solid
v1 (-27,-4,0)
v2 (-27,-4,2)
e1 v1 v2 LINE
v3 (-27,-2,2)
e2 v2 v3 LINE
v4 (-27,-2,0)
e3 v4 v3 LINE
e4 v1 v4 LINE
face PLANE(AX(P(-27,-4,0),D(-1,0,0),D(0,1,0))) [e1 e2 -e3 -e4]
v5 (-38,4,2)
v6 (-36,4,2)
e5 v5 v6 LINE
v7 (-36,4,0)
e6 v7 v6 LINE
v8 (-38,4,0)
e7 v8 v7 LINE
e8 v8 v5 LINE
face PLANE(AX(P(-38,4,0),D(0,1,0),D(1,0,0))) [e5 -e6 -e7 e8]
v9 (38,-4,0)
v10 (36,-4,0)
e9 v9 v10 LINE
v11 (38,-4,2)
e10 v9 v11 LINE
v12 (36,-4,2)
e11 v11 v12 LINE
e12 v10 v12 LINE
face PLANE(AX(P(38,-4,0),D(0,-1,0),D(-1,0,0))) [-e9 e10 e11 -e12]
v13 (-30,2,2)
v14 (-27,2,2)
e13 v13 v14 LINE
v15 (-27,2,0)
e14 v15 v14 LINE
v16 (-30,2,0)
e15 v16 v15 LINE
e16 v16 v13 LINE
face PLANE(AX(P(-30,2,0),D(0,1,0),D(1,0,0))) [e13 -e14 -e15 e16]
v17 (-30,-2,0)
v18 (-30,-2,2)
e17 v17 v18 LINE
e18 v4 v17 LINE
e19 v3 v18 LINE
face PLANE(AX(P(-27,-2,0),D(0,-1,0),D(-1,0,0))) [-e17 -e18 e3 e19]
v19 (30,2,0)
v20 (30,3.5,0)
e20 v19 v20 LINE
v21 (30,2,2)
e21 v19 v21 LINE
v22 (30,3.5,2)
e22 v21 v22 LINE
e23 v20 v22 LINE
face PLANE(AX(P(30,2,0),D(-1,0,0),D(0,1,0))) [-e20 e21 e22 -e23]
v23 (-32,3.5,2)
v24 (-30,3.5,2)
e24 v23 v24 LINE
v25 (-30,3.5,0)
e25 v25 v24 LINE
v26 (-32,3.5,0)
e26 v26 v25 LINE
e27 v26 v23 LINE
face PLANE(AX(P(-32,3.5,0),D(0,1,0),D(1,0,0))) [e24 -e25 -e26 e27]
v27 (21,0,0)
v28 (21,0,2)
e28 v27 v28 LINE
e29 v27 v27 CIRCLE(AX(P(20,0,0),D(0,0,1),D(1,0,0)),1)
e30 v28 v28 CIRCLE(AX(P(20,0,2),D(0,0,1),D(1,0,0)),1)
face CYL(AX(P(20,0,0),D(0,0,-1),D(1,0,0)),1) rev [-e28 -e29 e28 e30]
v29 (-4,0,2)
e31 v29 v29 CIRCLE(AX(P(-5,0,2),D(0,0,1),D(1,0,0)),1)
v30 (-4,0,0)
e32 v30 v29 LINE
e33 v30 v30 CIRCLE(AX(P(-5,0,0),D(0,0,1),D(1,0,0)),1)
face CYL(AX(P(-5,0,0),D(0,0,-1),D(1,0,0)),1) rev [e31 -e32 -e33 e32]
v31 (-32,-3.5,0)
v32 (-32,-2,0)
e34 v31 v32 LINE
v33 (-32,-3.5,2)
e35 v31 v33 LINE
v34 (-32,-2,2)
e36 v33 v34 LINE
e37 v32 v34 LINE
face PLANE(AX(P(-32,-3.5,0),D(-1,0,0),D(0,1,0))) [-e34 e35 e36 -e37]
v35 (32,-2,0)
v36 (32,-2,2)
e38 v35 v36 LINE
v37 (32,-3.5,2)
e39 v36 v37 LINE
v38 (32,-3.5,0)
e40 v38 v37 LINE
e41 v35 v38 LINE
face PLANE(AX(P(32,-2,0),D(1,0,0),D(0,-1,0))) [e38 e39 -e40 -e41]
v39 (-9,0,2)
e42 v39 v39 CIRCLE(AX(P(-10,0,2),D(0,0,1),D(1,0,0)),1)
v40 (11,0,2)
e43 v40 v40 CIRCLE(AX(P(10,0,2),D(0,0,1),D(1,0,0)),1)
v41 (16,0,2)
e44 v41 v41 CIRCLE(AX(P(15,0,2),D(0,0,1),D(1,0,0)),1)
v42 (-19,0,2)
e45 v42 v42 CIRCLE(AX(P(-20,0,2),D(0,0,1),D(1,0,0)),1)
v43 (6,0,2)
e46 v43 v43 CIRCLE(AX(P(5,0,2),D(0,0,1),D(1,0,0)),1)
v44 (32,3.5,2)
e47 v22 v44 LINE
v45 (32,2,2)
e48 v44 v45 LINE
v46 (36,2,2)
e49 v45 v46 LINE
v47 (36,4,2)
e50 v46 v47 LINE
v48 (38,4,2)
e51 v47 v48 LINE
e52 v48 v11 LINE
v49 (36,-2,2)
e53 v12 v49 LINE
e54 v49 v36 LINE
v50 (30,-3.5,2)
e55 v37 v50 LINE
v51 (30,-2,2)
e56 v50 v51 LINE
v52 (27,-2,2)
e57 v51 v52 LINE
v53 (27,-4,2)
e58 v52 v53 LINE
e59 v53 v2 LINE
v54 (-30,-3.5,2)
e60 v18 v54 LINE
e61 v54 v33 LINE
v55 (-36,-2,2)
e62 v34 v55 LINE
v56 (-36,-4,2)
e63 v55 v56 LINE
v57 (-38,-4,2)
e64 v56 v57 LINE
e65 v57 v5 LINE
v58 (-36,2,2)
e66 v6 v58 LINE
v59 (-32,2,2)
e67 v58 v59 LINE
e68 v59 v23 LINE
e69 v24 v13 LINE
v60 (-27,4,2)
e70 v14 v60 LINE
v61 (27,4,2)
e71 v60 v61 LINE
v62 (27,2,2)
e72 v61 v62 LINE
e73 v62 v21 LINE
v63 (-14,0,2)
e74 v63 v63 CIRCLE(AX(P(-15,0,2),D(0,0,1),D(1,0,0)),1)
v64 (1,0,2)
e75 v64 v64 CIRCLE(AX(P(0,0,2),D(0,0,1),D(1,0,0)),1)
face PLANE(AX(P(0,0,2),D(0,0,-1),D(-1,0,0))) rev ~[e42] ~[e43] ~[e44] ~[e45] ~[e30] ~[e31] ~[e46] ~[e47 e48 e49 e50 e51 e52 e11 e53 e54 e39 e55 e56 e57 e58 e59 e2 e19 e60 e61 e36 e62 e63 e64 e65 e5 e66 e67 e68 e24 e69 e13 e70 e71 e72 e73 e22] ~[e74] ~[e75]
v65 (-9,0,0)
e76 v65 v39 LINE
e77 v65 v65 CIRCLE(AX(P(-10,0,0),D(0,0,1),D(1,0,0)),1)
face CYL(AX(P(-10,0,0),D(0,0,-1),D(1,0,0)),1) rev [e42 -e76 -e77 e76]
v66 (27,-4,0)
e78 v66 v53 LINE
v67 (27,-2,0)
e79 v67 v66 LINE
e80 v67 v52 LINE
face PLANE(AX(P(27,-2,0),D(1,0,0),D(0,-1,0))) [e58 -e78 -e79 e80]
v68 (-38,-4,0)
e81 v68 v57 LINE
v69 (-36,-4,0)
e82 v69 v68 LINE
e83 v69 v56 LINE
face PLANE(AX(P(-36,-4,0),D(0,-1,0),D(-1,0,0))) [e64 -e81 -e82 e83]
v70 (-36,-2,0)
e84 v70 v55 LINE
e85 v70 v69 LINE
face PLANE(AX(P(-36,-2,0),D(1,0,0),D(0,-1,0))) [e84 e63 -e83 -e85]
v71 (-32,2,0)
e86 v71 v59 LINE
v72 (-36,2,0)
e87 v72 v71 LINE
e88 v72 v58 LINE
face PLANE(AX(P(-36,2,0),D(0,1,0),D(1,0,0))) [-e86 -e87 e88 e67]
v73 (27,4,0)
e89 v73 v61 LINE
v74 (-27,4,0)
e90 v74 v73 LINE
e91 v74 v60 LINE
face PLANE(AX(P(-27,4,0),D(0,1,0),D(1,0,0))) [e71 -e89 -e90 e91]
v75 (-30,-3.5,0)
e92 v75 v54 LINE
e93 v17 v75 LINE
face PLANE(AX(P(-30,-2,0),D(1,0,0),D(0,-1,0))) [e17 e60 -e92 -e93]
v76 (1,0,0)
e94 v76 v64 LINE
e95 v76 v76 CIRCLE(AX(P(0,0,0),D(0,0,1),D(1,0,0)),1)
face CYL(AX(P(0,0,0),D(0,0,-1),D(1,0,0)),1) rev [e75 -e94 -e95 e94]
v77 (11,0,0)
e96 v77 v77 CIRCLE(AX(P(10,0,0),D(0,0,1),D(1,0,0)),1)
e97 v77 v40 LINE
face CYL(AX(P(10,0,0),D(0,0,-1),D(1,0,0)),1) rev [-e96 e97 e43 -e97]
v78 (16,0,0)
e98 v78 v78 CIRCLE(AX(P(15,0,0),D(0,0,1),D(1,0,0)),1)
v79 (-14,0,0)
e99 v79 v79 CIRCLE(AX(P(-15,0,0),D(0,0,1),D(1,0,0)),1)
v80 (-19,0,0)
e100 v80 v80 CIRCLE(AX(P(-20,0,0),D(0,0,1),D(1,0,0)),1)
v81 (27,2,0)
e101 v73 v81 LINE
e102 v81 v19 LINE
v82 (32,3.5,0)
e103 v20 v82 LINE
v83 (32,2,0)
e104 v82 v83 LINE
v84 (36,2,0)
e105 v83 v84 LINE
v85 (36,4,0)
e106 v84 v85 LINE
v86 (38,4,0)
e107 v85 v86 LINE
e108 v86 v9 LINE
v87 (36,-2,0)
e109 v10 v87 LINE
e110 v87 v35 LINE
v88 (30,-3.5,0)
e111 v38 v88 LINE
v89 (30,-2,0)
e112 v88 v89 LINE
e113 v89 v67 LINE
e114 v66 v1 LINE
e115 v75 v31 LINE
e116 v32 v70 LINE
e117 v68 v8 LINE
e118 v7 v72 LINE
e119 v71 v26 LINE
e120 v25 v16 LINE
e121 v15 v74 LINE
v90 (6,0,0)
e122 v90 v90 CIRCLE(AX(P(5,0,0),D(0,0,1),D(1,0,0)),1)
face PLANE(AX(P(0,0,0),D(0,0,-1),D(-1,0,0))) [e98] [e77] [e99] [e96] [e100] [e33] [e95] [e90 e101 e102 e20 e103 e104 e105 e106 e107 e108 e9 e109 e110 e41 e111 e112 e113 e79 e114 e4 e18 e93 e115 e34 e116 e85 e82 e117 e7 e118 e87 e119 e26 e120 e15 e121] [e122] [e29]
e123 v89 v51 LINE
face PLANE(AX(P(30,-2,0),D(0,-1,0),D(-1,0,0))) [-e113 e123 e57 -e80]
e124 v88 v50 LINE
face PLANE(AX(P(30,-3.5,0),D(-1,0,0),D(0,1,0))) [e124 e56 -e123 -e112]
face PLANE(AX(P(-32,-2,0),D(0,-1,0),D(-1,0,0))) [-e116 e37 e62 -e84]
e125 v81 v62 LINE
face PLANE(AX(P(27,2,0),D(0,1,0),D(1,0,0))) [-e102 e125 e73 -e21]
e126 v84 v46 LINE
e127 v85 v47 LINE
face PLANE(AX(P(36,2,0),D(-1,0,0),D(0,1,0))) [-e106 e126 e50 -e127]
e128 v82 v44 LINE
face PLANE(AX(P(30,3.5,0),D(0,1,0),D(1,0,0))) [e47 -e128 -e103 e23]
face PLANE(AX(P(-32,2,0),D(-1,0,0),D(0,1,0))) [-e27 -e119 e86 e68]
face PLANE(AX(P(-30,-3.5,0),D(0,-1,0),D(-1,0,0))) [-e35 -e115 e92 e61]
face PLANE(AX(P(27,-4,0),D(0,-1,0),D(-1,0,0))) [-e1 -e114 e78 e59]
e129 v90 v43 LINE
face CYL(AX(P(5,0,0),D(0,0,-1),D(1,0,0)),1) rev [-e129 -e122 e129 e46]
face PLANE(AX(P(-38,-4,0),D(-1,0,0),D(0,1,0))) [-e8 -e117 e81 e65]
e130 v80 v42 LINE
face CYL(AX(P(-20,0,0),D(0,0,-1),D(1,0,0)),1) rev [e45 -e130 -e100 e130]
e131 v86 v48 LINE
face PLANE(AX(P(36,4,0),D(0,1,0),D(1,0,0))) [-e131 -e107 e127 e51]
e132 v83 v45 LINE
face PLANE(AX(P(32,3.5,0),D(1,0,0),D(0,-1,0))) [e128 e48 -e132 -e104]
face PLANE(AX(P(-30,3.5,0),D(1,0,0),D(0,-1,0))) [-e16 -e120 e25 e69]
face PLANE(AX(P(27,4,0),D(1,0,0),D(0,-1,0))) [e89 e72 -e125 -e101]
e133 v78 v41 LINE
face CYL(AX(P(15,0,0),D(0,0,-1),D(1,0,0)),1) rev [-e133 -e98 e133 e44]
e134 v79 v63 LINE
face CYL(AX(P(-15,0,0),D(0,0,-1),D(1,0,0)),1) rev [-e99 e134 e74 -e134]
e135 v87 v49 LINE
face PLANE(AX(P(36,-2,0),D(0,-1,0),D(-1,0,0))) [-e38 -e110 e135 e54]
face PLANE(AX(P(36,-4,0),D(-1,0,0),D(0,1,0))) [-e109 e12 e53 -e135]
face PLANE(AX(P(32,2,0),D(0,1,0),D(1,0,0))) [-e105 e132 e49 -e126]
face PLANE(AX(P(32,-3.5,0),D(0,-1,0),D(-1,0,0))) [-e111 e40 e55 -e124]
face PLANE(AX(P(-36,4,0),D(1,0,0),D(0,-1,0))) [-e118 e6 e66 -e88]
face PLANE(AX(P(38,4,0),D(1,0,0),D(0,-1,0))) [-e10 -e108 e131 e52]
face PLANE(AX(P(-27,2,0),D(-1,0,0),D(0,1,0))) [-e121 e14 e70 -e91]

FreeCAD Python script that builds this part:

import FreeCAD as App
import Part
import Sketcher
Q = App.Units.Quantity


def add_polygon(sketch, points):
    """Adds a closed chain of lines whose ends are joined by coincident constraints."""
    first, n = sketch.GeometryCount, len(points)
    for a, b in zip(points, points[1:] + points[:1]):
        sketch.addGeometry(Part.LineSegment(App.Vector(*a, 0), App.Vector(*b, 0)), False)
    for i in range(n):
        sketch.addConstraint(Sketcher.Constraint("Coincident", first + i, 2, first + (i + 1) % n, 1))

doc = App.newDocument("Part")
params = doc.addObject("Spreadsheet::Sheet", "Params")
for row, (alias, value) in enumerate([
    ("sketch1_diameter", "2 mm"),
    ("sketch1_width", "54 mm"),
    ("sketch1_width2", "3 mm"),
    ("sketch1_width3", "2 mm"),
    ("sketch1_width4", "4 mm"),
    ("pad1_length", "2 mm"),
], start=1):
    params.set(f"A{row}", alias)
    params.set(f"B{row}", "=" + value)
    params.setAlias(f"B{row}", alias)

body = doc.addObject("PartDesign::Body", "Body")

# Sketch on XY plane
sketch1 = body.newObject("Sketcher::SketchObject", "Sketch")
sketch1.AttachmentSupport = (doc.getObject("XY_Plane"), [""])
sketch1.MapMode = "FlatFace"
add_polygon(sketch1, [(27, 4), (-27, 4), (-27, 2), (-30, 2), (-30, 3.5), (-32, 3.5), (-32, 2), (-36, 2), (-36, 4), (-38, 4), (-38, -4), (-36, -4), (-36, -2), (-32, -2), (-32, -3.5), (-30, -3.5), (-30, -2), (-27, -2), (-27, -4), (27, -4), (27, -2), (30, -2), (30, -3.5), (32, -3.5), (32, -2), (36, -2), (36, -4), (38, -4), (38, 4), (36, 4), (36, 2), (32, 2), (32, 3.5), (30, 3.5), (30, 2), (27, 2)])  # lines 0-35
sketch1.addGeometry(Part.Circle(App.Vector(20, 0, 0), App.Vector(0, 0, 1), 1), False)  # 36
sketch1.addGeometry(Part.Circle(App.Vector(15, 0, 0), App.Vector(0, 0, 1), 1), False)  # 37
sketch1.addGeometry(Part.Circle(App.Vector(10, 0, 0), App.Vector(0, 0, 1), 1), False)  # 38
sketch1.addGeometry(Part.Circle(App.Vector(5, 0, 0), App.Vector(0, 0, 1), 1), False)  # 39
sketch1.addGeometry(Part.Circle(App.Vector(0, 0, 0), App.Vector(0, 0, 1), 1), False)  # 40
sketch1.addGeometry(Part.Circle(App.Vector(-5, 0, 0), App.Vector(0, 0, 1), 1), False)  # 41
sketch1.addGeometry(Part.Circle(App.Vector(-10, 0, 0), App.Vector(0, 0, 1), 1), False)  # 42
sketch1.addGeometry(Part.Circle(App.Vector(-15, 0, 0), App.Vector(0, 0, 1), 1), False)  # 43
sketch1.addGeometry(Part.Circle(App.Vector(-20, 0, 0), App.Vector(0, 0, 1), 1), False)  # 44
sketch1.addConstraint(Sketcher.Constraint("Horizontal", 0))
sketch1.addConstraint(Sketcher.Constraint("Vertical", 1))
sketch1.addConstraint(Sketcher.Constraint("Horizontal", 2))
sketch1.addConstraint(Sketcher.Constraint("Vertical", 3))
sketch1.addConstraint(Sketcher.Constraint("Horizontal", 4))
sketch1.addConstraint(Sketcher.Constraint("Vertical", 5))
sketch1.addConstraint(Sketcher.Constraint("Horizontal", 6))
sketch1.addConstraint(Sketcher.Constraint("Vertical", 7))
sketch1.addConstraint(Sketcher.Constraint("Horizontal", 8))
sketch1.addConstraint(Sketcher.Constraint("Vertical", 9))
sketch1.addConstraint(Sketcher.Constraint("Horizontal", 10))
sketch1.addConstraint(Sketcher.Constraint("Vertical", 11))
sketch1.addConstraint(Sketcher.Constraint("Horizontal", 12))
sketch1.addConstraint(Sketcher.Constraint("Vertical", 13))
sketch1.addConstraint(Sketcher.Constraint("Horizontal", 14))
sketch1.addConstraint(Sketcher.Constraint("Vertical", 15))
sketch1.addConstraint(Sketcher.Constraint("Horizontal", 16))
sketch1.addConstraint(Sketcher.Constraint("Vertical", 17))
sketch1.addConstraint(Sketcher.Constraint("Horizontal", 18))
sketch1.addConstraint(Sketcher.Constraint("Vertical", 19))
sketch1.addConstraint(Sketcher.Constraint("Horizontal", 20))
sketch1.addConstraint(Sketcher.Constraint("Vertical", 21))
sketch1.addConstraint(Sketcher.Constraint("Horizontal", 22))
sketch1.addConstraint(Sketcher.Constraint("Vertical", 23))
sketch1.addConstraint(Sketcher.Constraint("Horizontal", 24))
sketch1.addConstraint(Sketcher.Constraint("Vertical", 25))
sketch1.addConstraint(Sketcher.Constraint("Horizontal", 26))
sketch1.addConstraint(Sketcher.Constraint("Vertical", 27))
sketch1.addConstraint(Sketcher.Constraint("Horizontal", 28))
sketch1.addConstraint(Sketcher.Constraint("Vertical", 29))
sketch1.addConstraint(Sketcher.Constraint("Horizontal", 30))
sketch1.addConstraint(Sketcher.Constraint("Vertical", 31))
sketch1.addConstraint(Sketcher.Constraint("Horizontal", 32))
sketch1.addConstraint(Sketcher.Constraint("Vertical", 33))
sketch1.addConstraint(Sketcher.Constraint("Horizontal", 34))
sketch1.addConstraint(Sketcher.Constraint("Vertical", 35))
sketch1.addConstraint(Sketcher.Constraint("Coincident", 40, 3, -1, 1))
sketch1.addConstraint(Sketcher.Constraint("Equal", 36, 37))
sketch1.addConstraint(Sketcher.Constraint("Equal", 37, 38))
sketch1.addConstraint(Sketcher.Constraint("Equal", 38, 39))
sketch1.addConstraint(Sketcher.Constraint("Equal", 39, 40))
sketch1.addConstraint(Sketcher.Constraint("Equal", 40, 41))
sketch1.addConstraint(Sketcher.Constraint("Equal", 41, 42))
sketch1.addConstraint(Sketcher.Constraint("Equal", 42, 43))
sketch1.addConstraint(Sketcher.Constraint("Equal", 43, 44))
sketch1.addConstraint(Sketcher.Constraint("Symmetric", 39, 3, 41, 3, -1, 1))
sketch1.addConstraint(Sketcher.Constraint("Symmetric", 38, 3, 42, 3, -1, 1))
sketch1.addConstraint(Sketcher.Constraint("Symmetric", 37, 3, 43, 3, -1, 1))
sketch1.addConstraint(Sketcher.Constraint("Symmetric", 36, 3, 44, 3, -1, 1))
sketch1.addConstraint(Sketcher.Constraint("Symmetric", 0, 2, 18, 2, -1, 1))
sketch1.addConstraint(Sketcher.Constraint("Symmetric", 2, 2, 20, 2, -1, 1))
sketch1.addConstraint(Sketcher.Constraint("Symmetric", 4, 2, 22, 2, -1, 1))
sketch1.addConstraint(Sketcher.Constraint("Symmetric", 6, 2, 24, 2, -1, 1))
sketch1.addConstraint(Sketcher.Constraint("Symmetric", 8, 2, 26, 2, -1, 1))
sketch1.addConstraint(Sketcher.Constraint("Symmetric", 10, 2, 28, 2, -1, 1))
sketch1.addConstraint(Sketcher.Constraint("Symmetric", 12, 2, 30, 2, -1, 1))
sketch1.addConstraint(Sketcher.Constraint("Symmetric", 14, 2, 32, 2, -1, 1))
sketch1.addConstraint(Sketcher.Constraint("Symmetric", 16, 2, 34, 2, -1, 1))
sketch1.addConstraint(Sketcher.Constraint("Symmetric", 16, 2, 19, 2, -2))
sketch1.addConstraint(Sketcher.Constraint("Symmetric", 14, 2, 21, 2, -2))
sketch1.addConstraint(Sketcher.Constraint("Symmetric", 12, 2, 23, 2, -2))
sketch1.addConstraint(Sketcher.Constraint("Symmetric", 10, 2, 25, 2, -2))
sketch1.addConstraint(Sketcher.Constraint("PointOnObject", 36, 3, -1))
sketch1.addConstraint(Sketcher.Constraint("PointOnObject", 37, 3, -1))
sketch1.addConstraint(Sketcher.Constraint("PointOnObject", 38, 3, -1))
sketch1.addConstraint(Sketcher.Constraint("PointOnObject", 39, 3, -1))
sketch1.addConstraint(Sketcher.Constraint("Horizontal", 2, 2, 5, 2))
sketch1.addConstraint(Sketcher.Constraint("Horizontal", 0, 2, 7, 2))
sketch1.addConstraint(Sketcher.Constraint("Equal", 4, 8))
sketch1.addConstraint(Sketcher.Constraint("Equal", 32, 1))
sketch1.addConstraint(Sketcher.Constraint("Diameter", 36, Q("2 mm")))
sketch1.addConstraint(Sketcher.Constraint("DistanceX", 0, 2, 0, 1, Q("54 mm")))
sketch1.addConstraint(Sketcher.Constraint("DistanceX", 2, 2, 2, 1, Q("3 mm")))
sketch1.addConstraint(Sketcher.Constraint("DistanceX", 4, 2, 4, 1, Q("2 mm")))
sketch1.addConstraint(Sketcher.Constraint("DistanceX", 6, 2, 6, 1, Q("4 mm")))
sketch1.addConstraint(Sketcher.Constraint("DistanceY", 9, 2, 9, 1, Q("8 mm")))
sketch1.addConstraint(Sketcher.Constraint("DistanceY", 3, 1, 3, 2, Q("1.5 mm")))
sketch1.addConstraint(Sketcher.Constraint("DistanceX", -1, 1, 36, 3, Q("20 mm")))
sketch1.addConstraint(Sketcher.Constraint("DistanceX", -1, 1, 37, 3, Q("15 mm")))
sketch1.addConstraint(Sketcher.Constraint("DistanceX", -1, 1, 38, 3, Q("10 mm")))
sketch1.addConstraint(Sketcher.Constraint("DistanceX", -1, 1, 39, 3, Q("5 mm")))
sketch1.setExpression("Constraints[106]", "Params.sketch1_diameter")
sketch1.setExpression("Constraints[107]", "Params.sketch1_width")
sketch1.setExpression("Constraints[108]", "Params.sketch1_width2")
sketch1.setExpression("Constraints[109]", "Params.sketch1_width3")
sketch1.setExpression("Constraints[110]", "Params.sketch1_width4")
pad1 = body.newObject("PartDesign::Pad", "Pad")
pad1.Profile = sketch1
pad1.setExpression("Length", "Params.pad1_length")

doc.recompute()
